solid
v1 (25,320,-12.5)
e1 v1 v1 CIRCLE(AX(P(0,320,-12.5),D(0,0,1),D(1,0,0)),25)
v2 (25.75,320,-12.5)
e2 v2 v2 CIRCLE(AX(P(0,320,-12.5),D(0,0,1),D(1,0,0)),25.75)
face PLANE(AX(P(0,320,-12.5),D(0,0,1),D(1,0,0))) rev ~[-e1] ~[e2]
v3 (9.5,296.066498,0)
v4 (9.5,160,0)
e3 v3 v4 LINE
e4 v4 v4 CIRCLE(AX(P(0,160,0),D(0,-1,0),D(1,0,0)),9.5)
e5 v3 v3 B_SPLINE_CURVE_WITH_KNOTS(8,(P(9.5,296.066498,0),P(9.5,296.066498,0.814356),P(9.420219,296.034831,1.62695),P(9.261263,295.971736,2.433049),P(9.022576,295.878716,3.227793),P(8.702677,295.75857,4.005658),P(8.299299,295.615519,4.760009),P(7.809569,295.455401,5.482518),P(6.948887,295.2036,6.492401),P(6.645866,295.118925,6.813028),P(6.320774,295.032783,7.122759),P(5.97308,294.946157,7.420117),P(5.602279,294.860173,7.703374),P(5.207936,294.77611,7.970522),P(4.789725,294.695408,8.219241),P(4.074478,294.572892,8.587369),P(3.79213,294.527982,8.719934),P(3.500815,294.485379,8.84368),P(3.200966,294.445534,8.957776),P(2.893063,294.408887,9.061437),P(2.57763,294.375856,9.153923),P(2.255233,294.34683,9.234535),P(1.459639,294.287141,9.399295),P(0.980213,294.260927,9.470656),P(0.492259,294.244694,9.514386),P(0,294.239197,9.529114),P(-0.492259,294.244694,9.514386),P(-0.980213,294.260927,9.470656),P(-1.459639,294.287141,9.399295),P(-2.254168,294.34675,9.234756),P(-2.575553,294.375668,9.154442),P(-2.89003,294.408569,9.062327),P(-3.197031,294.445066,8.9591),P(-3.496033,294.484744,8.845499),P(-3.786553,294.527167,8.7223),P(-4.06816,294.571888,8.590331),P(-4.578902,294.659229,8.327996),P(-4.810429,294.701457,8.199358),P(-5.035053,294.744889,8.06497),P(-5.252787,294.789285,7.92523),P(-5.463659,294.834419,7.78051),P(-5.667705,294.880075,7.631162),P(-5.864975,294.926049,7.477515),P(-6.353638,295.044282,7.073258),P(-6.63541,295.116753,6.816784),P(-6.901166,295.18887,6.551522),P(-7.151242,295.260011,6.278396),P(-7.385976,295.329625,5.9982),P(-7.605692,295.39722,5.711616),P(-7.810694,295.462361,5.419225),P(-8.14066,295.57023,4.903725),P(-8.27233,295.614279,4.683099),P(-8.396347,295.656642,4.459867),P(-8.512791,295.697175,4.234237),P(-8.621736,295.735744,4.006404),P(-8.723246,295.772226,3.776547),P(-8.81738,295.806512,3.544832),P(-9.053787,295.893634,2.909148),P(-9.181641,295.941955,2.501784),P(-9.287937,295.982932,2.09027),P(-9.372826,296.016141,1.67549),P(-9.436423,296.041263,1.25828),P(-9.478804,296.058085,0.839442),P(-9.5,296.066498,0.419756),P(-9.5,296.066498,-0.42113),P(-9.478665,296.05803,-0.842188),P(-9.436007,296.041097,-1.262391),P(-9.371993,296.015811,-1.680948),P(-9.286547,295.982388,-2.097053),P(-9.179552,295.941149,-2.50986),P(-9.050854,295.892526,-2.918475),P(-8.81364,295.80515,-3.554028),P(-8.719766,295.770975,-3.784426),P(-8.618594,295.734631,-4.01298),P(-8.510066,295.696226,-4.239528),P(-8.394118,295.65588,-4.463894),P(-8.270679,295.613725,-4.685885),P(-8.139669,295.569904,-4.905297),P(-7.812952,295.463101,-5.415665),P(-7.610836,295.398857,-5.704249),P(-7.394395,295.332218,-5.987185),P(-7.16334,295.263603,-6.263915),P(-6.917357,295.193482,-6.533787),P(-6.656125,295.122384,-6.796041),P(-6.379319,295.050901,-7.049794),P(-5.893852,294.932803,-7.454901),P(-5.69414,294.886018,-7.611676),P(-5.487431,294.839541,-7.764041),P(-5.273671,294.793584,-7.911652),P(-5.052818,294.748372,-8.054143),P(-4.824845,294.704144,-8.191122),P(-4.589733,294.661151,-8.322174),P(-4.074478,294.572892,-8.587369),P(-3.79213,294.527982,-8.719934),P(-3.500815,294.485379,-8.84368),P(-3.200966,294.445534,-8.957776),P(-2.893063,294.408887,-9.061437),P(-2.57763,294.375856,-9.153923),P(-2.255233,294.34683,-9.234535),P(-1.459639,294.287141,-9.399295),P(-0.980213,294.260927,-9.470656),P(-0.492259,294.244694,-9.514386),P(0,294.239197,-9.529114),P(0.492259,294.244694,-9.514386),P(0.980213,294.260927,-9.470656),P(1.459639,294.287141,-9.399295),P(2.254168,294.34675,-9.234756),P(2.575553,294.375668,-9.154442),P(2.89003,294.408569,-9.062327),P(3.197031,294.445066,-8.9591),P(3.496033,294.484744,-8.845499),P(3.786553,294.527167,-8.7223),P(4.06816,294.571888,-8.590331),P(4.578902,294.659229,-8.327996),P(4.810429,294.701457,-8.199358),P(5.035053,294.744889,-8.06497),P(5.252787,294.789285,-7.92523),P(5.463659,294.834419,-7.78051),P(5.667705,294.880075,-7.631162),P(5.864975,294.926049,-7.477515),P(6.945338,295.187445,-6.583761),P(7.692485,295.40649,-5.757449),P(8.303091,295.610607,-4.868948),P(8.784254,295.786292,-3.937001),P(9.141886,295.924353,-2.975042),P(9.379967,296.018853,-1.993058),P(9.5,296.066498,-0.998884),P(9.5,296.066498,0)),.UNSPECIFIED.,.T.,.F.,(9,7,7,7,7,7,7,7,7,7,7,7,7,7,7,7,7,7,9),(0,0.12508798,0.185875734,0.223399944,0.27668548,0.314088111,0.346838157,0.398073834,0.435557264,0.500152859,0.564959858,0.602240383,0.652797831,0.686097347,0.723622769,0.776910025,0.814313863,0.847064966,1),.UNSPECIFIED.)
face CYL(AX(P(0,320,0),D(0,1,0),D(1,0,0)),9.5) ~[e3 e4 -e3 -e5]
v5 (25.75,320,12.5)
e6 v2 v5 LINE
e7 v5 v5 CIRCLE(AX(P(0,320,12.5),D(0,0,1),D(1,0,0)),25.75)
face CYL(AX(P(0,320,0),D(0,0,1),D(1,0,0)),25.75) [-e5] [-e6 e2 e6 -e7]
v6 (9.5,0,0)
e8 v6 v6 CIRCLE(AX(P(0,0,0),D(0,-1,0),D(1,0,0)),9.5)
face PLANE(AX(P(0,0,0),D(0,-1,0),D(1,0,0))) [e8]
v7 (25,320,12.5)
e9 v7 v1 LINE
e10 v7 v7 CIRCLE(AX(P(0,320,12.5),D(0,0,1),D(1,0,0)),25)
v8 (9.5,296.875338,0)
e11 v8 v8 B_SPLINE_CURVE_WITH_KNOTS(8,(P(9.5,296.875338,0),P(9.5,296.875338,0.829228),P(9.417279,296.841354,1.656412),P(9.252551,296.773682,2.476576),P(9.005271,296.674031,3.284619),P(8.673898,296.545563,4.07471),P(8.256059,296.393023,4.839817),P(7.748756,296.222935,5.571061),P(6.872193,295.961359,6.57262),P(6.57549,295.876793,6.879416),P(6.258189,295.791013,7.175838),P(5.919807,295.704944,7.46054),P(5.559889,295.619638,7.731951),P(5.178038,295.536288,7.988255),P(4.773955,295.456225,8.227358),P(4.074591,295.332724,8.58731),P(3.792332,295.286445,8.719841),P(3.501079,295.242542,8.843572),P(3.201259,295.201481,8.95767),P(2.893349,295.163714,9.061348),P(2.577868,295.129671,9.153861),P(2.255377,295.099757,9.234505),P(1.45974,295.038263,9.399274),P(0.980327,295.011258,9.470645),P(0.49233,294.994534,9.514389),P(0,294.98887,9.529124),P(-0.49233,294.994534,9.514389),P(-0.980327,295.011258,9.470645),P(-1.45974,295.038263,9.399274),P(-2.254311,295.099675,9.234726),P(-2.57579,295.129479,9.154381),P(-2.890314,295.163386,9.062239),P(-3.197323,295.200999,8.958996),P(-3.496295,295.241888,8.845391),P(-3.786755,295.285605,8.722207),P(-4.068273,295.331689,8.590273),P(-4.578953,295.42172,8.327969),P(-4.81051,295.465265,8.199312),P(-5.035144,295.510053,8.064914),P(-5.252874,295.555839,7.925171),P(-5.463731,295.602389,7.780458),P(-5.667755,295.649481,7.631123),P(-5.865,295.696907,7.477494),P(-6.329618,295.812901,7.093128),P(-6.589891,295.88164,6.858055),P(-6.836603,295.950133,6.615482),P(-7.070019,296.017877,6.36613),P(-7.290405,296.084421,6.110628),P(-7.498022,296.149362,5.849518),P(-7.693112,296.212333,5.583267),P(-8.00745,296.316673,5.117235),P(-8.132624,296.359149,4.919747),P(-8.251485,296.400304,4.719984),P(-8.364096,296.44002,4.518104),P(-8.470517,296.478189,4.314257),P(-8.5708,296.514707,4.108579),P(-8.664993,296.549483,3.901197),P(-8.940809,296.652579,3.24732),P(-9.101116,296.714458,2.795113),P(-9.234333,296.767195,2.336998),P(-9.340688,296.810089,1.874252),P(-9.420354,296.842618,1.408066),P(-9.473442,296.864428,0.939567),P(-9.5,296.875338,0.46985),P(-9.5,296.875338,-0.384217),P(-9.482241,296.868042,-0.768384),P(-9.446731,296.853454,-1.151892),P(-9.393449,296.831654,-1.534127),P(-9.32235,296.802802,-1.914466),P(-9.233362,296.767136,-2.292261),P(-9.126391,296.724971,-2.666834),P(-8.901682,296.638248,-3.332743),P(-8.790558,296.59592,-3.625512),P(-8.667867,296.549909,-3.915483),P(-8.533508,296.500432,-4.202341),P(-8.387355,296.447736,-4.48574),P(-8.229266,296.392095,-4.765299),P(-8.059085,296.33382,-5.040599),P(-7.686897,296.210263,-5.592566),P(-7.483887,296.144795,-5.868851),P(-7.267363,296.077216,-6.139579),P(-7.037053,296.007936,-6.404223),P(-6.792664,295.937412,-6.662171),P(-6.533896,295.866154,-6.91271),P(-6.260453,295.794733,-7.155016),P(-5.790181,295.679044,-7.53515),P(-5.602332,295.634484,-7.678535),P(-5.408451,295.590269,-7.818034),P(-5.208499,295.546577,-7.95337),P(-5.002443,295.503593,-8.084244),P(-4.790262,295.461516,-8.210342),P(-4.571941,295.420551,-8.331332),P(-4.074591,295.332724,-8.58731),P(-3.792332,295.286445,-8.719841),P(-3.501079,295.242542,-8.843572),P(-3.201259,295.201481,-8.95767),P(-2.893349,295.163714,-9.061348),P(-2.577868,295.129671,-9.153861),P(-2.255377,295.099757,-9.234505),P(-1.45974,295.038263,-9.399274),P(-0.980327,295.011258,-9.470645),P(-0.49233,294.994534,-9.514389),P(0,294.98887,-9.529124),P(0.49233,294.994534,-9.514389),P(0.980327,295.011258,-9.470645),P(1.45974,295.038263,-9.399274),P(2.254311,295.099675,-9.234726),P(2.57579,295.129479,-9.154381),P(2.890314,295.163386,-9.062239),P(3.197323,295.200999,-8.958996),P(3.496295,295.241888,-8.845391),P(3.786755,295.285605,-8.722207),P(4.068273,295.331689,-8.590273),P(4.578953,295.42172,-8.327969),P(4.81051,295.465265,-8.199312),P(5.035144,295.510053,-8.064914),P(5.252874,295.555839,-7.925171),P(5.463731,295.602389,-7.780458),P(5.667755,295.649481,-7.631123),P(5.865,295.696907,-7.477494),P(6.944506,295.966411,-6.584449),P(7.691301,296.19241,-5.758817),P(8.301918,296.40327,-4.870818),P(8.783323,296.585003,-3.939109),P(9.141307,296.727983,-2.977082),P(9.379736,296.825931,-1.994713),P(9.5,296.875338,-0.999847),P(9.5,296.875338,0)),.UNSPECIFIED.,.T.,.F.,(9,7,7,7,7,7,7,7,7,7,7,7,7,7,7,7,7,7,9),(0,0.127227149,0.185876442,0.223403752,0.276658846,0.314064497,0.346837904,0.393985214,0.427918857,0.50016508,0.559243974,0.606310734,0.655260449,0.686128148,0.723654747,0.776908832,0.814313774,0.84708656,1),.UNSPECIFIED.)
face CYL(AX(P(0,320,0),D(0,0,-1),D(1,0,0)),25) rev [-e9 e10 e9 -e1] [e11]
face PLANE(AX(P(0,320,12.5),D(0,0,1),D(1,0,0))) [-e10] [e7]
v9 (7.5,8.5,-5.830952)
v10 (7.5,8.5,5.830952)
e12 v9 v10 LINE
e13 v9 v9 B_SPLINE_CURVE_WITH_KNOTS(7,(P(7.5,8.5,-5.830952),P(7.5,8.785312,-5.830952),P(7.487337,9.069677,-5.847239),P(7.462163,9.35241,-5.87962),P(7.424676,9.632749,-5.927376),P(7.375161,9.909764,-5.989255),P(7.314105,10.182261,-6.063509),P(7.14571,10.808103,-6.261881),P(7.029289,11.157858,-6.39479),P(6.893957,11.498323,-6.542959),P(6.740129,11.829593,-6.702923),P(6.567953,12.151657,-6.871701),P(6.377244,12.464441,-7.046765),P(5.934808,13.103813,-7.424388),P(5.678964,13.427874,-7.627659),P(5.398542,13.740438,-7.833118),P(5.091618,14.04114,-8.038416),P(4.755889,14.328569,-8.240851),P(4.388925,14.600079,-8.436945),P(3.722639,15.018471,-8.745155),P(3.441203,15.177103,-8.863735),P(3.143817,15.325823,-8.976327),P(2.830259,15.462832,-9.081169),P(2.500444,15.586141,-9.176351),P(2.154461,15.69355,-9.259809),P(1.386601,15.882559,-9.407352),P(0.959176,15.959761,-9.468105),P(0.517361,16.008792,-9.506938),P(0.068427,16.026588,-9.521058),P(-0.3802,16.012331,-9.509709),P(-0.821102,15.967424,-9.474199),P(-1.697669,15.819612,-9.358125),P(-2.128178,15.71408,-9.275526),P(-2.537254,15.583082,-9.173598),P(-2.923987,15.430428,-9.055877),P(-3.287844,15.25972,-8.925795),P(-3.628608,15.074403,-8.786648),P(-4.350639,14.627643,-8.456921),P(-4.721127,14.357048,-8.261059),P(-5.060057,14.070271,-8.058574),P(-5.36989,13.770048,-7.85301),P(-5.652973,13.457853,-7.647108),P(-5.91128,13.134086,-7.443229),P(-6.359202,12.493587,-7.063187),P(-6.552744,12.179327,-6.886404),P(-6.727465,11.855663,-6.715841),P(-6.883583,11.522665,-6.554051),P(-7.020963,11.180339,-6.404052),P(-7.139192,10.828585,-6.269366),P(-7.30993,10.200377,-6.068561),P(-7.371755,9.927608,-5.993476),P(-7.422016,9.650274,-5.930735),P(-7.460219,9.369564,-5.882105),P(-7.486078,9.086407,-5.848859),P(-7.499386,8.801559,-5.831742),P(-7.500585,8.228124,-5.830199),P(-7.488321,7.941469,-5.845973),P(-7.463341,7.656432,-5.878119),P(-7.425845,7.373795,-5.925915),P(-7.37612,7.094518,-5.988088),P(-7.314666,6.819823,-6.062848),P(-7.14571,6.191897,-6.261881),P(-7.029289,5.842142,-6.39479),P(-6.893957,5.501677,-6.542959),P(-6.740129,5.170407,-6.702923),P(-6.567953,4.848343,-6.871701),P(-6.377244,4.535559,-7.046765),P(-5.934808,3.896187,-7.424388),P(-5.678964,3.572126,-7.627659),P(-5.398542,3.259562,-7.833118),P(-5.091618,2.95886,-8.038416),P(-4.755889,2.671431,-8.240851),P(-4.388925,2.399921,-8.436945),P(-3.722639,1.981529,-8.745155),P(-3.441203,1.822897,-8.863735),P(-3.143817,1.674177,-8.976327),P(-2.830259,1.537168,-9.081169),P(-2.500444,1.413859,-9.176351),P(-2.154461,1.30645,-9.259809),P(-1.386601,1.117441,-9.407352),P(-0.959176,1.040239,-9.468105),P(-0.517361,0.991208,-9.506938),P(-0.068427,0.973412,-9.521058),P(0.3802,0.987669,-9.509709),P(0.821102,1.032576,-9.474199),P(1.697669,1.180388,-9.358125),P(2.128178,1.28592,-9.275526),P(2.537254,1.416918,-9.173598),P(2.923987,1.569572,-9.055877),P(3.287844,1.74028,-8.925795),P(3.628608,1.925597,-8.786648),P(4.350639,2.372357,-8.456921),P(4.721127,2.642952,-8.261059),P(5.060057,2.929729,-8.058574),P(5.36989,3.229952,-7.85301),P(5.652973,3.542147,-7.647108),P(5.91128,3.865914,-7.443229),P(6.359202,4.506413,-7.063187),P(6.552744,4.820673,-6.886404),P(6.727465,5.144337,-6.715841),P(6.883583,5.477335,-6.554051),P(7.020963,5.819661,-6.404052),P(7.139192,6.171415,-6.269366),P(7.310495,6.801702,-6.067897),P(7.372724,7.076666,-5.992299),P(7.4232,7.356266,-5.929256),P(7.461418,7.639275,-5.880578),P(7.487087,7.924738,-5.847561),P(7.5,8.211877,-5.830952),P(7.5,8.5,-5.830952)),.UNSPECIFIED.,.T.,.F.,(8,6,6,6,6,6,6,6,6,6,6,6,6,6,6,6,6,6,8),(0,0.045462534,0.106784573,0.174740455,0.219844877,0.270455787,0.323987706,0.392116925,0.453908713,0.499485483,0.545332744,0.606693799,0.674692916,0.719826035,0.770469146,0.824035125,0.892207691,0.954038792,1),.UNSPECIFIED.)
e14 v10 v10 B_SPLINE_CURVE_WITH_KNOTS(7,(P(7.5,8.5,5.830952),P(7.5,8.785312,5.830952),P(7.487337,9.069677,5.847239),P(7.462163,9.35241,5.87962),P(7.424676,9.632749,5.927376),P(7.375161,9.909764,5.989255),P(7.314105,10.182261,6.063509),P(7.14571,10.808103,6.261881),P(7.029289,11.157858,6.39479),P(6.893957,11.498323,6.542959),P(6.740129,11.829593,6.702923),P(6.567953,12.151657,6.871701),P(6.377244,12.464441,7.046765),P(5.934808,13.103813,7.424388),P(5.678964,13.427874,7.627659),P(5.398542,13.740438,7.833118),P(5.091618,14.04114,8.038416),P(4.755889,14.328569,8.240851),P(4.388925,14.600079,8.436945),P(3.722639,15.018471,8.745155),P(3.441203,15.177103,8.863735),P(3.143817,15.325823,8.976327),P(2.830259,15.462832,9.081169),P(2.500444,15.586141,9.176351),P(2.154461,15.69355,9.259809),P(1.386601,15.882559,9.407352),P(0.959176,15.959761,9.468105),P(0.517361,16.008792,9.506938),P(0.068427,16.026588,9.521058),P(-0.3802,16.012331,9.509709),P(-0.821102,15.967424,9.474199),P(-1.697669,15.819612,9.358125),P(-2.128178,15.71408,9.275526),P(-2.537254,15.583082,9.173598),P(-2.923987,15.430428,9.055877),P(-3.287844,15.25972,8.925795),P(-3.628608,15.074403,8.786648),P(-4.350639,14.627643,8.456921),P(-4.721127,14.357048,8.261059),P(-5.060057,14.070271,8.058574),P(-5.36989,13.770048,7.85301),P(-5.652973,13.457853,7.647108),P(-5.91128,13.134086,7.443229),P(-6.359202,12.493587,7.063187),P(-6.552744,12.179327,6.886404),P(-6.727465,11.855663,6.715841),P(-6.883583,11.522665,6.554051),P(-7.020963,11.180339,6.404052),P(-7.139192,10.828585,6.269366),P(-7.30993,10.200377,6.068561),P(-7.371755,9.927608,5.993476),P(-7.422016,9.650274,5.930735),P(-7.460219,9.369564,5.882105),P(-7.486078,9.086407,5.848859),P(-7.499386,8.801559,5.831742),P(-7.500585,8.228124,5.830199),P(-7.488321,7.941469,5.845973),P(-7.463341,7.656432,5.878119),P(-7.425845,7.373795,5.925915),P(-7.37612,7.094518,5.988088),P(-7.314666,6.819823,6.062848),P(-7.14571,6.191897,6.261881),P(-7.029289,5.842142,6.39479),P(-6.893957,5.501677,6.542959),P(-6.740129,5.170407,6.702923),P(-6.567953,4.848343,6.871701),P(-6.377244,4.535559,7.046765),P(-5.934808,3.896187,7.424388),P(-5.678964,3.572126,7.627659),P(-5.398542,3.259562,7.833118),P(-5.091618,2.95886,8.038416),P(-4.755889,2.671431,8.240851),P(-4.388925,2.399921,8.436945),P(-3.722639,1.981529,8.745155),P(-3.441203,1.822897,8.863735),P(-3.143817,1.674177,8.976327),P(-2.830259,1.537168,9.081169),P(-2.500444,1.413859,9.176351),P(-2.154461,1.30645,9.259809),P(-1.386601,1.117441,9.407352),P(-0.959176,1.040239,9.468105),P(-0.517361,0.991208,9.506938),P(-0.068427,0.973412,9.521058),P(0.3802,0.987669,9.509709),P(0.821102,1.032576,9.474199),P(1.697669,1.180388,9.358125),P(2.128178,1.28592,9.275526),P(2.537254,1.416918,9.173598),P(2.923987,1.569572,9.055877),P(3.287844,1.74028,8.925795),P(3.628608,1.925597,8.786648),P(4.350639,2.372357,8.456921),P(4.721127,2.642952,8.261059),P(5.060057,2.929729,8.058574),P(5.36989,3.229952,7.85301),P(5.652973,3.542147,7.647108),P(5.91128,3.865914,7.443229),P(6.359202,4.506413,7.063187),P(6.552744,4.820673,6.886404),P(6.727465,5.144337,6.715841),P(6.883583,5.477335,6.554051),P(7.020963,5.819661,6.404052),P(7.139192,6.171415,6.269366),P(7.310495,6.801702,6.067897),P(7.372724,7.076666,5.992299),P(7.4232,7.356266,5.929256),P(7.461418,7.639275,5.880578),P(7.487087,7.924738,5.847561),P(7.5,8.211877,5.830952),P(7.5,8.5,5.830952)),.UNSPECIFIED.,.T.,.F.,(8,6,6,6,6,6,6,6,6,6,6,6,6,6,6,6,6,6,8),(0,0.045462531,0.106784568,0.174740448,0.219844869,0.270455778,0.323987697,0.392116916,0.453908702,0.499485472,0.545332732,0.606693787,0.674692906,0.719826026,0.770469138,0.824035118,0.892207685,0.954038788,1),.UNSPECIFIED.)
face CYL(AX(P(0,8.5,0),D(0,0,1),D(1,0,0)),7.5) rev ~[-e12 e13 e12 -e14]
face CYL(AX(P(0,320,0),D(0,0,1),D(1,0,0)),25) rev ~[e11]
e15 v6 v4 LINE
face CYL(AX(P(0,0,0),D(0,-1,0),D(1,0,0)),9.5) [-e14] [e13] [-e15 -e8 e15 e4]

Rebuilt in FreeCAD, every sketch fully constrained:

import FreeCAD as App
import Part
import Sketcher
from FreeCAD import Vector
Q = App.Units.Quantity

doc = App.newDocument("Part")
body = doc.addObject("PartDesign::Body", "Body")

# Sketch on XZ plane
sketch1 = body.newObject("Sketcher::SketchObject", "Sketch")
sketch1.AttachmentSupport = (doc.getObject("XZ_Plane"), [""])
sketch1.MapMode = "FlatFace"
sketch1.addGeometry(Part.Circle(Vector(0, 0, 0), Vector(0, 0, 1), 10), False)
sketch1.addConstraint(Sketcher.Constraint("Coincident", 0, 3, -1, 1))
sketch1.addConstraint(Sketcher.Constraint("Diameter", 0, Q("19 mm")))
pad1 = body.newObject("PartDesign::Pad", "Pad")
pad1.Profile = sketch1
pad1.Length = 160
pad1.Reversed = True

# Sketch on XZ plane
sketch2 = body.newObject("Sketcher::SketchObject", "Sketch001")
sketch2.AttachmentSupport = (doc.getObject("XZ_Plane"), [""])
sketch2.MapMode = "FlatFace"
sketch2.addGeometry(Part.LineSegment(Vector(-19, 10, 0), Vector(-19, -10, 0)), False)
sketch2.addGeometry(Part.LineSegment(Vector(-19, -10, 0), Vector(19, -10, 0)), False)
sketch2.addGeometry(Part.LineSegment(Vector(19, -10, 0), Vector(19, 10, 0)), False)
sketch2.addGeometry(Part.LineSegment(Vector(19, 10, 0), Vector(-19, 10, 0)), False)
sketch2.addConstraint(Sketcher.Constraint("Coincident", 0, 2, 1, 1))
sketch2.addConstraint(Sketcher.Constraint("Coincident", 1, 2, 2, 1))
sketch2.addConstraint(Sketcher.Constraint("Coincident", 2, 2, 3, 1))
sketch2.addConstraint(Sketcher.Constraint("Coincident", 3, 2, 0, 1))
sketch2.addConstraint(Sketcher.Constraint("Vertical", 0))
sketch2.addConstraint(Sketcher.Constraint("Horizontal", 1))
sketch2.addConstraint(Sketcher.Constraint("Vertical", 2))
sketch2.addConstraint(Sketcher.Constraint("Horizontal", 3))
sketch2.addConstraint(Sketcher.Constraint("Symmetric", 0, 2, 2, 2, -1, 1))
sketch2.addConstraint(Sketcher.Constraint("DistanceY", 0, 2, 0, 1, Q("20 mm")))
sketch2.addConstraint(Sketcher.Constraint("DistanceX", 1, 1, 1, 2, Q("37.5 mm")))
pocket1 = body.newObject("PartDesign::Pocket", "Pocket")
pocket1.Profile = sketch2
pocket1.Length = 30
pocket1.Reversed = True

# Sketch on XY plane
sketch3 = body.newObject("Sketcher::SketchObject", "Sketch002")
sketch3.AttachmentSupport = (doc.getObject("XY_Plane"), [""])
sketch3.MapMode = "FlatFace"
sketch3.addGeometry(Part.Circle(Vector(0, 8, 0), Vector(0, 0, 1), 8), False)
sketch3.addConstraint(Sketcher.Constraint("PointOnObject", 0, 3, -2))
sketch3.addConstraint(Sketcher.Constraint("Diameter", 0, Q("15 mm")))
sketch3.addConstraint(Sketcher.Constraint("DistanceY", -1, 1, 0, 3, Q("8.5 mm")))
pocket2 = body.newObject("PartDesign::Pocket", "Pocket001")
pocket2.Profile = sketch3
pocket2.Length = 2000
pocket2.Midplane = True
body2 = doc.addObject("PartDesign::Body", "Body001")
doc.recompute()

body2.BaseFeature = body
doc.recompute()

mirroring = doc.addObject("Part::Mirroring", "Mirroring")
mirroring.Source = body
mirroring.Base = Vector(0, 160, 0)
mirroring.Normal = Vector(0, 1, 0)
body3 = doc.addObject("PartDesign::Body", "Body002")
body3.BaseFeature = mirroring
boolean = body2.newObject("PartDesign::Boolean", "Boolean")
boolean.Type = "Fuse"
boolean.addObjects([body3])
doc.recompute()

# Sketch on XY plane
sketch4 = body2.newObject("Sketcher::SketchObject", "Sketch003")
sketch4.AttachmentSupport = (doc.getObject("XY_Plane001"), [""])
sketch4.MapMode = "FlatFace"
sketch4.addGeometry(Part.Circle(Vector(0, 320, 0), Vector(0, 0, 1), 26), False)
sketch4.addGeometry(Part.Circle(Vector(0, 320, 0), Vector(0, 0, 1), 25), False)
sketch4.addConstraint(Sketcher.Constraint("Coincident", 1, 3, 0, 3))
sketch4.addConstraint(Sketcher.Constraint("PointOnObject", 0, 3, -2))
sketch4.addConstraint(Sketcher.Constraint("Diameter", 1, Q("50 mm")))
sketch4.addConstraint(Sketcher.Constraint("Diameter", 0, Q("51.5 mm")))
sketch4.addConstraint(Sketcher.Constraint("DistanceY", -1, 1, 0, 3, Q("320 mm")))
pad2 = body2.newObject("PartDesign::Pad", "Pad001")
pad2.Profile = sketch4
pad2.Length = 25
pad2.Midplane = True

# Sketch on XY plane
sketch5 = body2.newObject("Sketcher::SketchObject", "Sketch004")
sketch5.AttachmentSupport = (doc.getObject("XY_Plane001"), [""])
sketch5.MapMode = "FlatFace"
sketch5.addGeometry(Part.Circle(Vector(0, 320, 0), Vector(0, 0, 1), 25), False)
sketch5.addConstraint(Sketcher.Constraint("PointOnObject", 0, 3, -2))
sketch5.addConstraint(Sketcher.Constraint("Diameter", 0, Q("50 mm")))
sketch5.addConstraint(Sketcher.Constraint("DistanceY", -1, 1, 0, 3, Q("320 mm")))
pocket3 = body2.newObject("PartDesign::Pocket", "Pocket002")
pocket3.Profile = sketch5
pocket3.Length = 1000
pocket3.Midplane = True
mirroring.Visibility = False

doc.recompute()
